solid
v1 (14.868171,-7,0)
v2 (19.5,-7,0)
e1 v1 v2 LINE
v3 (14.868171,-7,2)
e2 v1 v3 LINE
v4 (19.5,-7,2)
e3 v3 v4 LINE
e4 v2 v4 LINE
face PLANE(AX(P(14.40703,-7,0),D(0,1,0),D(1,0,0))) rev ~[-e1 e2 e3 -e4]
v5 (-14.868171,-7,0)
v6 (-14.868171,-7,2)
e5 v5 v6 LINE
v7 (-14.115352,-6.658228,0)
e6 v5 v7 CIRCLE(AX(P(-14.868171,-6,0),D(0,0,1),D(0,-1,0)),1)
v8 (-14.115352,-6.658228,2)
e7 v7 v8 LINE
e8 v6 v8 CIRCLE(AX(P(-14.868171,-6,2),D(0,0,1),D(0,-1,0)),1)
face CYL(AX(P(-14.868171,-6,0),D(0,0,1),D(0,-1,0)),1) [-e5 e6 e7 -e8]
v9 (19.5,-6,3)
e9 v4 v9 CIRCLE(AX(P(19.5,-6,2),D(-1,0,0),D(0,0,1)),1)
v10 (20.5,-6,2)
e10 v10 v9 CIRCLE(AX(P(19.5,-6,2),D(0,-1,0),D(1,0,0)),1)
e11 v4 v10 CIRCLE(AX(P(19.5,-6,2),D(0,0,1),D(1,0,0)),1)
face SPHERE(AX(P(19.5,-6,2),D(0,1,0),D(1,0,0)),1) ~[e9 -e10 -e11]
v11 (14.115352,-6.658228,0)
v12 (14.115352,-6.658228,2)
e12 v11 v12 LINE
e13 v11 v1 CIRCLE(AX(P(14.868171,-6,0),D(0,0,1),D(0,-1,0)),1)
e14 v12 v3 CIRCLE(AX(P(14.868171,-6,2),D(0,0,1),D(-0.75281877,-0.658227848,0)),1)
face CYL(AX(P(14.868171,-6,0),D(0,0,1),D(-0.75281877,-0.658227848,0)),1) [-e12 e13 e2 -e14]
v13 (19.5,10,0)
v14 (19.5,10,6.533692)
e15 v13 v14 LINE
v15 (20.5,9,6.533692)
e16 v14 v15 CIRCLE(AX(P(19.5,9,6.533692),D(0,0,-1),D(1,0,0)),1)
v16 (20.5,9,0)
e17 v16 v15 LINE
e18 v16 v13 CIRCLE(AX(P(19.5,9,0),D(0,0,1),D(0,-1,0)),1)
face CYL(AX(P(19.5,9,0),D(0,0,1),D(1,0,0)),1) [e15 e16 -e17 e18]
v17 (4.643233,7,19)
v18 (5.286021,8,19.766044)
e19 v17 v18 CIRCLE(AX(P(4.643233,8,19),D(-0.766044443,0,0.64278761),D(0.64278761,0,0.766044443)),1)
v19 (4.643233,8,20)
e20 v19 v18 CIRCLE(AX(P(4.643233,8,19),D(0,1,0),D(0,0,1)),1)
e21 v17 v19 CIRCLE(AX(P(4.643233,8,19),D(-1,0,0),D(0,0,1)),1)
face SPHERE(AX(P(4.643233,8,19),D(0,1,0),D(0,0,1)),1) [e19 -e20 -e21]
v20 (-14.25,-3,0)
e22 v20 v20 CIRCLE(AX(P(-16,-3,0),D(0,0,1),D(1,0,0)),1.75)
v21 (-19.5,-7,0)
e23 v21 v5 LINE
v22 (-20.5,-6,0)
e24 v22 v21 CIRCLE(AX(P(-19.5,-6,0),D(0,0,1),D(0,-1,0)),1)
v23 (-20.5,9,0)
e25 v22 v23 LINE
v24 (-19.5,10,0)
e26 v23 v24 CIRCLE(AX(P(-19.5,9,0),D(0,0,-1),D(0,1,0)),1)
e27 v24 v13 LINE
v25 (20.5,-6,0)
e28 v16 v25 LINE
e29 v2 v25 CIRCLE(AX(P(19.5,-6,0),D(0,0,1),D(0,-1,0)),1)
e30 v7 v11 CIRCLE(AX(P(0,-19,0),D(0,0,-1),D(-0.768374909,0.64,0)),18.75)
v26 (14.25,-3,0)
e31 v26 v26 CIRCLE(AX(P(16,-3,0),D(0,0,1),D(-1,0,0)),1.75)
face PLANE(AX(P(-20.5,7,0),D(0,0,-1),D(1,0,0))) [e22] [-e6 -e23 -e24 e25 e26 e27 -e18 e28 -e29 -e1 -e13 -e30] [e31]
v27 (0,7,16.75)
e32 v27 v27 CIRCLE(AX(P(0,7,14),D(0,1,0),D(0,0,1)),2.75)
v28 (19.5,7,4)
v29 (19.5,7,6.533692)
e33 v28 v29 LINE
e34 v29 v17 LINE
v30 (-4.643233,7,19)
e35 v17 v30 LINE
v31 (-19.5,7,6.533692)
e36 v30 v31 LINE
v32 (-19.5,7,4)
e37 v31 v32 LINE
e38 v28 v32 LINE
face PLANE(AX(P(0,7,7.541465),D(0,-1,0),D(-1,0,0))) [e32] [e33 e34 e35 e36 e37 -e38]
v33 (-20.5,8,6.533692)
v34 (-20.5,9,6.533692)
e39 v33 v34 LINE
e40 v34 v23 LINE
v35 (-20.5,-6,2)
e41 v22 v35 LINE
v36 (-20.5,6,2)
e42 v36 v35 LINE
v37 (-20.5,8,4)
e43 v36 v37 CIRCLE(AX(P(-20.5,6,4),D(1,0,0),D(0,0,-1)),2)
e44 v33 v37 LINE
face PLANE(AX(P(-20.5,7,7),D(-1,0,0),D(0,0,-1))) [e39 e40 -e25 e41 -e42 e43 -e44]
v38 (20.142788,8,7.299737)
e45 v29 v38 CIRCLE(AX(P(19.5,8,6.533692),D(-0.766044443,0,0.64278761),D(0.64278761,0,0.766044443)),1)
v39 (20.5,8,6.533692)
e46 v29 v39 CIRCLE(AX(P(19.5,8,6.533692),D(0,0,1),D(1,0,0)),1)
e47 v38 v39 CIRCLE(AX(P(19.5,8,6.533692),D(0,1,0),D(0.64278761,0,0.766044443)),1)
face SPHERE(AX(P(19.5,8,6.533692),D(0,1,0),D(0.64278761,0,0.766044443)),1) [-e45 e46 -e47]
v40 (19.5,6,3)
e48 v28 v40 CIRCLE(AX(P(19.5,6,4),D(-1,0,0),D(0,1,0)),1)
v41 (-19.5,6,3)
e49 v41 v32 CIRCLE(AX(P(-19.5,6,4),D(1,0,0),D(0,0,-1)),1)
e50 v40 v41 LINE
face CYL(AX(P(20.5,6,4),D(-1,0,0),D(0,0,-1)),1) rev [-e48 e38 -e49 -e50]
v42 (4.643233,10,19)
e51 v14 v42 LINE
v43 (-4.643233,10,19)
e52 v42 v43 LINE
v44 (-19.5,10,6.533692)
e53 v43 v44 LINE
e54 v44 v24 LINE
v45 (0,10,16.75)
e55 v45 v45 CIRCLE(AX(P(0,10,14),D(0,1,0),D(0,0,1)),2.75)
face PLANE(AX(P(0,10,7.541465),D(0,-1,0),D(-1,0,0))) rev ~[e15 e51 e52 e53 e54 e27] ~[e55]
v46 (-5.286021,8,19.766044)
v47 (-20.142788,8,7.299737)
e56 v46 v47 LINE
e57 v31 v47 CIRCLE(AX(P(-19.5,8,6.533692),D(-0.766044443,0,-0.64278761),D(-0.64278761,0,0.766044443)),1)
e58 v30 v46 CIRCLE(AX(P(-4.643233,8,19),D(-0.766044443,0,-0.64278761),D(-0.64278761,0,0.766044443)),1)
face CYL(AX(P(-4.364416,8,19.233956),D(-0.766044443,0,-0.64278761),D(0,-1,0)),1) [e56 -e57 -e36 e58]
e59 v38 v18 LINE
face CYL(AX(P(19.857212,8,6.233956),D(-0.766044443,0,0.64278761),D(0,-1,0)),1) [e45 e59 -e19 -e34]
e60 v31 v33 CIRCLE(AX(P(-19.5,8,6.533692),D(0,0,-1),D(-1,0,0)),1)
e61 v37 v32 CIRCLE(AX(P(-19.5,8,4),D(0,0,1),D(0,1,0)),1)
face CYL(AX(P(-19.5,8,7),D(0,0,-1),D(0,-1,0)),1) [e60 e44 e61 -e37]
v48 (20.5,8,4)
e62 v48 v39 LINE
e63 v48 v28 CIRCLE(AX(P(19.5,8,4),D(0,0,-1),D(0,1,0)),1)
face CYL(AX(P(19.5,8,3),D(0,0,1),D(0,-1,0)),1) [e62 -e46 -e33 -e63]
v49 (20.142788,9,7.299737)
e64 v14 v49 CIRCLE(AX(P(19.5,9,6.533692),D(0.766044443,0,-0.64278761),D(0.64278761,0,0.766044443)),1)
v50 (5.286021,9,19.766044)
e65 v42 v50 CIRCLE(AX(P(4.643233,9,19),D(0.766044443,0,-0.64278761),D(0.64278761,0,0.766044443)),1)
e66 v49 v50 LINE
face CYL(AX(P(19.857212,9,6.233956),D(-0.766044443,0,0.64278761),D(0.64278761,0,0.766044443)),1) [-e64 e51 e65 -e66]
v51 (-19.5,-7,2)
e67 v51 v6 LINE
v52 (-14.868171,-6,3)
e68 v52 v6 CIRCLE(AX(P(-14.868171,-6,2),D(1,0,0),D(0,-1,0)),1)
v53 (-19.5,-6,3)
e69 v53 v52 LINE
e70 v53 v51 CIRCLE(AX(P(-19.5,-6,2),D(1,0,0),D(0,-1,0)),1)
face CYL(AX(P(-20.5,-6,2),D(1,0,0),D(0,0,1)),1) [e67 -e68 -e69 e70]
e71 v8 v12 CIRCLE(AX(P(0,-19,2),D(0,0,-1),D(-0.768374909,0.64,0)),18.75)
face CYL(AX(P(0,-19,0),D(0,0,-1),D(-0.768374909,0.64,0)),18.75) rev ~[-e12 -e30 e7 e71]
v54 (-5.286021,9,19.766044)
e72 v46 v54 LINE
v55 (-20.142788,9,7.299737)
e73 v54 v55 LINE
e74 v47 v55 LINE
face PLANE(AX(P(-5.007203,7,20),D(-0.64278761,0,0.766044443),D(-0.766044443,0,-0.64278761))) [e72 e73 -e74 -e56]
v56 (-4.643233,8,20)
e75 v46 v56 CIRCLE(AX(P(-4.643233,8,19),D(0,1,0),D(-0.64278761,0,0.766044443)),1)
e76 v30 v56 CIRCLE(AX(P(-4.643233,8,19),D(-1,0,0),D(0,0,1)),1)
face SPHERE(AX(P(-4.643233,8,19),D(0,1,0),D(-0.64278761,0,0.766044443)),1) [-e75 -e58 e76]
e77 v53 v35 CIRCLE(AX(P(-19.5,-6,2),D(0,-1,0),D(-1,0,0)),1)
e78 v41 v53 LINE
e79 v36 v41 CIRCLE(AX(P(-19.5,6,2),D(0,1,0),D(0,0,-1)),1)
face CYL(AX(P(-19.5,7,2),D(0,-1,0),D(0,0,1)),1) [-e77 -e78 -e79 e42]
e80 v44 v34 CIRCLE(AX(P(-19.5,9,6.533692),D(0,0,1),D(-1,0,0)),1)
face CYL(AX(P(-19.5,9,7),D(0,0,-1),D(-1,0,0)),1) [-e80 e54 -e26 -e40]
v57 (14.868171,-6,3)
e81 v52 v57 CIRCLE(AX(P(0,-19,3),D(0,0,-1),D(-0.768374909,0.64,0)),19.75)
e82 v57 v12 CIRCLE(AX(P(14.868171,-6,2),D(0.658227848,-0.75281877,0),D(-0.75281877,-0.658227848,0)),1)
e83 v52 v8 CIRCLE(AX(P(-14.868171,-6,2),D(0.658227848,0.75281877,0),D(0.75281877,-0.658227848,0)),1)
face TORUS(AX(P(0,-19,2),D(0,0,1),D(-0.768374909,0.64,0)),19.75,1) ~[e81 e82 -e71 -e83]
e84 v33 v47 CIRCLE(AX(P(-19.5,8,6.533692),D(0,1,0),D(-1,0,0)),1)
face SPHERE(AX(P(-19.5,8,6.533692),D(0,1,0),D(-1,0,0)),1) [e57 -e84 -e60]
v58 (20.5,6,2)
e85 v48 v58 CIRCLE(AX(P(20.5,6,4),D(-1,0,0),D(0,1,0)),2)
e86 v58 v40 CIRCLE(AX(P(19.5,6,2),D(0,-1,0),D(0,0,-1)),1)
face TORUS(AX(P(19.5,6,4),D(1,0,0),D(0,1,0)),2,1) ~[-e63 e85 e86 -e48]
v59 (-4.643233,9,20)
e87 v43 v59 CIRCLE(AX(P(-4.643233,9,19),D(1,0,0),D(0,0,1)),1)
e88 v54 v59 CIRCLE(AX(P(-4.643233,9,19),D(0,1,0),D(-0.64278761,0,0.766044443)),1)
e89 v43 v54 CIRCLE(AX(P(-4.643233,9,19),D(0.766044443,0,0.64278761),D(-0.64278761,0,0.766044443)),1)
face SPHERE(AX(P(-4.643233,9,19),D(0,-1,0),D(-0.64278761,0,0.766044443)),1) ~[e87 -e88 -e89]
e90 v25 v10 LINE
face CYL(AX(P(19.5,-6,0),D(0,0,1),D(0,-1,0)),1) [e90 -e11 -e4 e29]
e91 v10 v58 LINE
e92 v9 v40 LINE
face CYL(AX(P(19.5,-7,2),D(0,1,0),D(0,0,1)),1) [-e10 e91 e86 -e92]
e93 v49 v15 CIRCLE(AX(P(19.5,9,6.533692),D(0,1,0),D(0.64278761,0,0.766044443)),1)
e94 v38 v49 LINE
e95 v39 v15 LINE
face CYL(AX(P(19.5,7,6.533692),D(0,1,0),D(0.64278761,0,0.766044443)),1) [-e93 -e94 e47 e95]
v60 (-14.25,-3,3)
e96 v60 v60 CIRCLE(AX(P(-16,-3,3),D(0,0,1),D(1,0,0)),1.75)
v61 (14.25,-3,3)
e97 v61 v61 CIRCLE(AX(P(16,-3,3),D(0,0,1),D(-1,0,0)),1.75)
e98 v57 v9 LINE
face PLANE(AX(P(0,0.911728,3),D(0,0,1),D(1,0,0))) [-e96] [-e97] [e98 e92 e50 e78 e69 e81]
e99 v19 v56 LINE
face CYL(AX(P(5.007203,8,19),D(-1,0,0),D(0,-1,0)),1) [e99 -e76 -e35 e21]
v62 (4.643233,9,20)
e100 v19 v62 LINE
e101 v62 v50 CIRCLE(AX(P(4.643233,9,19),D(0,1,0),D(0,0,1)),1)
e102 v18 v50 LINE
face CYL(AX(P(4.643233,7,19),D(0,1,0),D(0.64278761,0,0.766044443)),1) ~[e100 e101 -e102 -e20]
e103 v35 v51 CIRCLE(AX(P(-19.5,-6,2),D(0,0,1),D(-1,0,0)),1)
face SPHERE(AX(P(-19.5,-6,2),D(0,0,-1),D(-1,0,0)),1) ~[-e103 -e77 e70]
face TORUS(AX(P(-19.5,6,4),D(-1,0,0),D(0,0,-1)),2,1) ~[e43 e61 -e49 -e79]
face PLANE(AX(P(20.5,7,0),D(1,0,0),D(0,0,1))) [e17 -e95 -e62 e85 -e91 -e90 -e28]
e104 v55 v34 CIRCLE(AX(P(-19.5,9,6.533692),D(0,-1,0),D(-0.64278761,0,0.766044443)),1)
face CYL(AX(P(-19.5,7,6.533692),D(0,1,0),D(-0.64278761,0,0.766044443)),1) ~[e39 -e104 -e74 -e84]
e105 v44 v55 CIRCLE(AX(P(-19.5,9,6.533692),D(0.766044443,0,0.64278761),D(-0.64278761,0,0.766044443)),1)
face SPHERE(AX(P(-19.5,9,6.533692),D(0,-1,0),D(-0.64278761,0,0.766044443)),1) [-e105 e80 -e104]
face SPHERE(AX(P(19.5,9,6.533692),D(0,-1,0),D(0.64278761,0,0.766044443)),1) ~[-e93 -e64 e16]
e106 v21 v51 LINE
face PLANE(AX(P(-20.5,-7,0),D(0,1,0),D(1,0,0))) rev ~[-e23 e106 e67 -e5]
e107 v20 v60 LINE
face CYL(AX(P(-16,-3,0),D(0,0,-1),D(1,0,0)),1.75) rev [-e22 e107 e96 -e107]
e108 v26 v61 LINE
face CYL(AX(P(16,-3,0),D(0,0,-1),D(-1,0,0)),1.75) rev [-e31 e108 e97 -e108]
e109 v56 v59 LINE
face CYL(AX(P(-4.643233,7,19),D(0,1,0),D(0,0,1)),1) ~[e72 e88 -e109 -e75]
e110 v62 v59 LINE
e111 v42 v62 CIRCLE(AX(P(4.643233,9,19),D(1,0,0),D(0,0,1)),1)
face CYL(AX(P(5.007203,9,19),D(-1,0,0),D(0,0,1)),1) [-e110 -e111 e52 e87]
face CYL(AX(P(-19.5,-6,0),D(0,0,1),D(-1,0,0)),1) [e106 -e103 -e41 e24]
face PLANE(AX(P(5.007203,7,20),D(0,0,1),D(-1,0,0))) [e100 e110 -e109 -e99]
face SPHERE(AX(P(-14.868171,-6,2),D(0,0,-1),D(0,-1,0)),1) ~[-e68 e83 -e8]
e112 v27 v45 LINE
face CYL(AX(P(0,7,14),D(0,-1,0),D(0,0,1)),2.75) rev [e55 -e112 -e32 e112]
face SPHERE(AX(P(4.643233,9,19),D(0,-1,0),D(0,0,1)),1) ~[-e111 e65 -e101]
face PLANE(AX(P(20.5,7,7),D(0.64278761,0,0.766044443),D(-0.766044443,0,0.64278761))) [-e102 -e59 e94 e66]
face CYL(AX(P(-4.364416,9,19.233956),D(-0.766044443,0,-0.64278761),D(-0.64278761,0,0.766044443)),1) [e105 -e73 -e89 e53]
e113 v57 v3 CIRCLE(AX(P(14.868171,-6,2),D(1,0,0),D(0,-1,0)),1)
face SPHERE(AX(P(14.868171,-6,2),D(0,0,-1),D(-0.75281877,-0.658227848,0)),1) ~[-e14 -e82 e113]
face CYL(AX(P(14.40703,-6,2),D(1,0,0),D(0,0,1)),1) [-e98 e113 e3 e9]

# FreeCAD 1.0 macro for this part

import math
import FreeCAD as App
import Part
import Sketcher
from FreeCAD import Vector
Q = App.Units.Quantity


def edges_at(feature, points):
    """Names of the edges that pass closest to the given points."""
    edges = feature.Shape.Edges
    near = lambda p: min(range(len(edges)), key=lambda i: edges[i].distToShape(Part.Vertex(*p))[0])
    return sorted({f"Edge{near(p) + 1}" for p in points})

doc = App.newDocument("Part")
body = doc.addObject("PartDesign::Body", "Body")

sketch1 = body.newObject("Sketcher::SketchObject", "Sketch")
sketch1.AttachmentSupport = (doc.getObject("XY_Plane"), [""])
sketch1.MapMode = "FlatFace"
sketch1.addGeometry([
    Part.LineSegment(Vector(-20.5, 7, 0), Vector(-20.5, -7, 0)),
    Part.LineSegment(Vector(-20.5, -7, 0), Vector(-14.4, -7, 0)),
    Part.ArcOfCircle(Part.Circle(Vector(0, -19, 0), Vector(0, 0, 1), 18.8), math.radians(40), math.radians(140)),
    Part.LineSegment(Vector(14.4, -7, 0), Vector(20.5, -7, 0)),
    Part.LineSegment(Vector(20.5, -7, 0), Vector(20.5, 7, 0)),
    Part.LineSegment(Vector(20.5, 7, 0), Vector(-20.5, 7, 0)),
    Part.Circle(Vector(-16, -3, 0), Vector(0, 0, 1), 1.8),
    Part.Circle(Vector(16, -3, 0), Vector(0, 0, 1), 1.8),
], False)
sketch1.addConstraint([
    Sketcher.Constraint("Coincident", 0, 2, 1, 1),
    Sketcher.Constraint("Coincident", 1, 2, 2, 2),
    Sketcher.Constraint("Coincident", 2, 1, 3, 1),
    Sketcher.Constraint("Coincident", 3, 2, 4, 1),
    Sketcher.Constraint("Coincident", 4, 2, 5, 1),
    Sketcher.Constraint("Coincident", 5, 2, 0, 1),
    Sketcher.Constraint("Vertical", 0),
    Sketcher.Constraint("Horizontal", 1),
    Sketcher.Constraint("Horizontal", 3),
    Sketcher.Constraint("Vertical", 4),
    Sketcher.Constraint("Horizontal", 5),
    Sketcher.Constraint("Equal", 6, 7),
    Sketcher.Constraint("Symmetric", 0, 2, 4, 2, -1, 1),
    Sketcher.Constraint("Symmetric", 6, 3, 7, 3, -2),
    Sketcher.Constraint("Symmetric", 1, 2, 2, 1, -2),
    Sketcher.Constraint("Diameter", 6, Q("3.5 mm")),
    Sketcher.Constraint("DistanceX", 5, 2, 5, 1, Q("41 mm")),
    Sketcher.Constraint("DistanceY", 0, 2, 0, 1, Q("14 mm")),
    Sketcher.Constraint("Radius", 2, Q("18.75 mm")),
    Sketcher.Constraint("DistanceY", 2, 3, -1, 1, Q("19 mm")),
    Sketcher.Constraint("DistanceX", 6, 3, -1, 1, Q("16 mm")),
    Sketcher.Constraint("DistanceY", 6, 3, -1, 1, Q("3 mm")),
])
pad1 = body.newObject("PartDesign::Pad", "Pad")
pad1.Profile = sketch1
pad1.Length = 3

sketch2 = body.newObject("Sketcher::SketchObject", "Sketch001")
sketch2.AttachmentSupport = (doc.getObject("XZ_Plane"), [""])
sketch2.MapMode = "FlatFace"
sketch2.AttachmentOffset = App.Placement(Vector(0, 0, -7), App.Rotation())
sketch2.addGeometry([
    Part.LineSegment(Vector(20.5, 0, 0), Vector(-20.5, 0, 0)),
    Part.LineSegment(Vector(-20.5, 0, 0), Vector(-20.5, 7, 0)),
    Part.LineSegment(Vector(-20.5, 7, 0), Vector(-5, 20, 0)),
    Part.LineSegment(Vector(-5, 20, 0), Vector(5, 20, 0)),
    Part.LineSegment(Vector(5, 20, 0), Vector(20.5, 7, 0)),
    Part.LineSegment(Vector(20.5, 7, 0), Vector(20.5, 0, 0)),
    Part.Circle(Vector(0, 14, 0), Vector(0, 0, 1), 2.8),
], False)
sketch2.addConstraint([
    Sketcher.Constraint("Coincident", 0, 2, 1, 1),
    Sketcher.Constraint("Coincident", 1, 2, 2, 1),
    Sketcher.Constraint("Coincident", 2, 2, 3, 1),
    Sketcher.Constraint("Coincident", 3, 2, 4, 1),
    Sketcher.Constraint("Coincident", 4, 2, 5, 1),
    Sketcher.Constraint("Coincident", 5, 2, 0, 1),
    Sketcher.Constraint("Horizontal", 0),
    Sketcher.Constraint("Vertical", 1),
    Sketcher.Constraint("Horizontal", 3),
    Sketcher.Constraint("Vertical", 5),
    Sketcher.Constraint("Symmetric", 0, 2, 5, 2, -1, 1),
    Sketcher.Constraint("PointOnObject", 6, 3, -2),
    Sketcher.Constraint("Horizontal", 1, 2, 4, 2),
    Sketcher.Constraint("Equal", 2, 4),
    Sketcher.Constraint("Diameter", 6, Q("5.5 mm")),
    Sketcher.Constraint("DistanceX", 0, 2, 0, 1, Q("41 mm")),
    Sketcher.Constraint("DistanceY", 1, 1, 1, 2, Q("7 mm")),
    Sketcher.Constraint("Angle", 2, Q("40 deg")),
    Sketcher.Constraint("DistanceY", -1, 1, 6, 3, Q("14 mm")),
    Sketcher.Constraint("DistanceY", -1, 1, 2, 2, Q("20 mm")),
])
pad2 = body.newObject("PartDesign::Pad", "Pad001")
pad2.Profile = sketch2
pad2.Length = 3
pad2.Reversed = True
doc.recompute()

fillet = body.newObject("PartDesign::Fillet", "Fillet")
fillet.Base = (pad2, edges_at(pad2, [
    (20.5, 0, 3),
    (-14.407, -7, 1.5),
    (-20.5, -7, 1.5),
    (20.5, -7, 1.5),
    (14.407, -7, 1.5),
    (0, 7, 3),
    (-20.5, 0, 3),
    (-17.454, -7, 3),
    (-12.754, 10, 13.5),
    (0, 10, 20),
    (12.754, 10, 13.5),
    (20.5, 10, 3.5),
    (-20.5, 10, 3.5),
    (-12.754, 7, 13.5),
    (-20.5, 8.5, 7),
    (0, 7, 20),
    (-5.007, 8.5, 20),
    (12.754, 7, 13.5),
    (5.007, 8.5, 20),
    (20.5, 7, 5),
    (20.5, 8.5, 7),
    (-20.5, 7, 5),
    (0, -0.25, 3),
    (17.454, -7, 3),
]))
fillet.Radius = 1

doc.recompute()
